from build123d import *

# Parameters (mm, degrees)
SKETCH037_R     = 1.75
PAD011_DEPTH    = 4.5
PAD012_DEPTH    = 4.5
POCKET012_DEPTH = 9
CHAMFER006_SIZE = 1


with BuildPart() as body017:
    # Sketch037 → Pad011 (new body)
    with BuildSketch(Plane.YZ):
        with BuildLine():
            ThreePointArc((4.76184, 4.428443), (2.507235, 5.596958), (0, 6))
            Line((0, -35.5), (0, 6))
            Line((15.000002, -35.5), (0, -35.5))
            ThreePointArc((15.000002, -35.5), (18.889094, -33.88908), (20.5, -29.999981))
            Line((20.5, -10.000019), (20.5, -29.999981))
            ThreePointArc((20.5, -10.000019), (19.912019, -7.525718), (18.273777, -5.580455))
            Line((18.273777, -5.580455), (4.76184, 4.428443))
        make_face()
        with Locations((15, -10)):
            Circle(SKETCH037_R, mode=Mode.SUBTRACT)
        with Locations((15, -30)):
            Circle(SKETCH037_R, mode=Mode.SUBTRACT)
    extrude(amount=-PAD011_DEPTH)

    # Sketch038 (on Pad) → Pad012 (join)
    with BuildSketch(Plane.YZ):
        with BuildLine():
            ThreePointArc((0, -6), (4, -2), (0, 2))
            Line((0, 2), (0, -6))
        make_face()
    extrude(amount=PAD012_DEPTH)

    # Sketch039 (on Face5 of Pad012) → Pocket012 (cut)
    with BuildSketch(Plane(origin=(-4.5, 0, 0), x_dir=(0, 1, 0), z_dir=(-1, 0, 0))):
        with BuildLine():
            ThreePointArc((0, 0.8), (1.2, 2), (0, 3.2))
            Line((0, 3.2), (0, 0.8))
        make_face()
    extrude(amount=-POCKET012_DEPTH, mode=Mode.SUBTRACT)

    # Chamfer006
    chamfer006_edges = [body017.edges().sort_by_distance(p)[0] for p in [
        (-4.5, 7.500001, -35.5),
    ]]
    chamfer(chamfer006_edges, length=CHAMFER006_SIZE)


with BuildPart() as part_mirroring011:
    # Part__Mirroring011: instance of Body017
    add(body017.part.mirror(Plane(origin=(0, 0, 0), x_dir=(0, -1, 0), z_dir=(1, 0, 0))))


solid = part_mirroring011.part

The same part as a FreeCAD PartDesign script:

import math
import FreeCAD as App
import Part
import Sketcher


def edges_at(feature, points):
    """Names of the edges that pass closest to the given points."""
    edges = feature.Shape.Edges
    near = lambda p: min(range(len(edges)), key=lambda i: edges[i].distToShape(Part.Vertex(*p))[0])
    return sorted({f"Edge{near(p) + 1}" for p in points})

doc = App.newDocument("Part")
body = doc.addObject("PartDesign::Body", "Body")

# Sketch on YZ plane
sketch1 = body.newObject("Sketcher::SketchObject", "Sketch")
sketch1.AttachmentSupport = (doc.getObject("YZ_Plane"), [""])
sketch1.MapMode = "FlatFace"
sketch1.addGeometry([
    Part.ArcOfCircle(Part.Circle(App.Vector(0, -2, 0), App.Vector(0, 0, 1), 8), math.radians(53), math.radians(90)),  # 0
    Part.LineSegment(App.Vector(0, 6, 0), App.Vector(0, -35.5, 0)),  # 1
    Part.LineSegment(App.Vector(0, -35.5, 0), App.Vector(15, -35.5, 0)),  # 2
    Part.ArcOfCircle(Part.Circle(App.Vector(15, -30, 0), App.Vector(0, 0, 1), 5.5), math.radians(-90), math.radians(0)),  # 3
    Part.LineSegment(App.Vector(20.5, -30, 0), App.Vector(20.5, -10, 0)),  # 4
    Part.ArcOfCircle(Part.Circle(App.Vector(15, -10, 0), App.Vector(0, 0, 1), 5.5), math.radians(0), math.radians(53)),  # 5
    Part.LineSegment(App.Vector(18.3, -5.6, 0), App.Vector(4.8, 4.4, 0)),  # 6
    Part.Circle(App.Vector(15, -30, 0), App.Vector(0, 0, 1), 1.8),  # 7
    Part.Circle(App.Vector(15, -10, 0), App.Vector(0, 0, 1), 1.8),  # 8
], False)
sketch1.addConstraint([
    Sketcher.Constraint("Coincident", 0, 2, 1, 1),
    Sketcher.Constraint("Coincident", 1, 2, 2, 1),
    Sketcher.Constraint("Tangent", 2, 2, 3, 1),
    Sketcher.Constraint("Coincident", 3, 2, 4, 1),
    Sketcher.Constraint("Coincident", 4, 2, 5, 1),
    Sketcher.Constraint("Coincident", 5, 2, 6, 1),
    Sketcher.Constraint("Tangent", 6, 2, 0, 1),
    Sketcher.Constraint("Vertical", 1),
    Sketcher.Constraint("Horizontal", 2),
    Sketcher.Constraint("Vertical", 4),
    Sketcher.Constraint("Coincident", 7, 3, 3, 3),
    Sketcher.Constraint("Coincident", 8, 3, 5, 3),
    Sketcher.Constraint("Equal", 7, 8),
    Sketcher.Constraint("PointOnObject", 0, 3, -2),
    Sketcher.Constraint("PointOnObject", 0, 2, -2),
    Sketcher.Constraint("Vertical", 7, 3, 8, 3),
    Sketcher.Constraint("Radius", 0, 8.000002),
    Sketcher.Constraint("Diameter", 7, 3.5),
    Sketcher.Constraint("Radius", 3, 5.500001),
    Sketcher.Constraint("DistanceY", 1, 2, 1, 1, 41.5),
    Sketcher.Constraint("DistanceY", 0, 3, -1, 1, 2.000002),
    Sketcher.Constraint("DistanceX", -1, 1, 3, 3, 14.999999),
    Sketcher.Constraint("DistanceY", 5, 3, -1, 1, 9.999999),
    Sketcher.Constraint("DistanceY", 4, 1, 4, 2, 19.999962),
    Sketcher.Constraint("DistanceY", 3, 2, -1, 1, 29.999981),
    Sketcher.Constraint("Distance", 6, 16.815186),
])
pad1 = body.newObject("PartDesign::Pad", "Pad")
pad1.Profile = sketch1
pad1.Length = 4.5
pad1.Reversed = True

# Sketch on YZ plane
sketch2 = body.newObject("Sketcher::SketchObject", "Sketch001")
sketch2.AttachmentSupport = (doc.getObject("YZ_Plane"), [""])
sketch2.MapMode = "FlatFace"
sketch2.addGeometry([
    Part.ArcOfCircle(Part.Circle(App.Vector(0, -2, 0), App.Vector(0, 0, 1), 4), math.radians(-90), math.radians(90)),
    Part.LineSegment(App.Vector(0, 2, 0), App.Vector(0, -6, 0)),
], False)
sketch2.addConstraint([
    Sketcher.Constraint("Coincident", 0, 1, 1, 2),
    Sketcher.Constraint("Coincident", 1, 1, 0, 2),
    Sketcher.Constraint("Vertical", 1),
    Sketcher.Constraint("PointOnObject", 0, 3, -2),
    Sketcher.Constraint("PointOnObject", 0, 1, -2),
    Sketcher.Constraint("Radius", 0, 4.0),
    Sketcher.Constraint("DistanceY", 0, 3, -1, 1, 2.0),
])
pad2 = body.newObject("PartDesign::Pad", "Pad001")
pad2.Profile = sketch2
pad2.Length = 4.5

# Sketch on YZ plane
sketch3 = body.newObject("Sketcher::SketchObject", "Sketch002")
sketch3.AttachmentSupport = (doc.getObject("YZ_Plane"), [""])
sketch3.MapMode = "FlatFace"
sketch3.AttachmentOffset = App.Placement(App.Vector(0, 0, -4.5), App.Rotation())
sketch3.addGeometry([
    Part.ArcOfCircle(Part.Circle(App.Vector(0, -2, 0), App.Vector(0, 0, 1), 1.2), math.radians(-90), math.radians(90)),
    Part.LineSegment(App.Vector(0, -3.2, 0), App.Vector(0, -0.8, 0)),
], False)
sketch3.addConstraint([
    Sketcher.Constraint("Coincident", 0, 1, 1, 1),
    Sketcher.Constraint("Coincident", 1, 2, 0, 2),
    Sketcher.Constraint("Vertical", 1),
    Sketcher.Constraint("PointOnObject", 0, 3, -2),
    Sketcher.Constraint("PointOnObject", 0, 1, -2),
    Sketcher.Constraint("Radius", 0, 1.2),
    Sketcher.Constraint("DistanceY", 0, 3, -1, 1, 2.0),
])
pocket1 = body.newObject("PartDesign::Pocket", "Pocket")
pocket1.Profile = sketch3
pocket1.Length = 9
pocket1.Reversed = True
doc.recompute()

chamfer = body.newObject("PartDesign::Chamfer", "Chamfer")
chamfer.Base = (pocket1, edges_at(pocket1, [(-4.5, 7.5, -35.5)]))
chamfer.Size = 1
body2 = doc.addObject("PartDesign::Body", "Body001")
doc.recompute()

mirroring = doc.addObject("Part::Mirroring", "Mirroring")
mirroring.Source = body
mirroring.Base = App.Vector(0, 0, 0)
mirroring.Normal = App.Vector(1, 0, 0)
body2.BaseFeature = mirroring
doc.recompute()
body.Visibility = False
mirroring.Visibility = False

doc.recompute()
